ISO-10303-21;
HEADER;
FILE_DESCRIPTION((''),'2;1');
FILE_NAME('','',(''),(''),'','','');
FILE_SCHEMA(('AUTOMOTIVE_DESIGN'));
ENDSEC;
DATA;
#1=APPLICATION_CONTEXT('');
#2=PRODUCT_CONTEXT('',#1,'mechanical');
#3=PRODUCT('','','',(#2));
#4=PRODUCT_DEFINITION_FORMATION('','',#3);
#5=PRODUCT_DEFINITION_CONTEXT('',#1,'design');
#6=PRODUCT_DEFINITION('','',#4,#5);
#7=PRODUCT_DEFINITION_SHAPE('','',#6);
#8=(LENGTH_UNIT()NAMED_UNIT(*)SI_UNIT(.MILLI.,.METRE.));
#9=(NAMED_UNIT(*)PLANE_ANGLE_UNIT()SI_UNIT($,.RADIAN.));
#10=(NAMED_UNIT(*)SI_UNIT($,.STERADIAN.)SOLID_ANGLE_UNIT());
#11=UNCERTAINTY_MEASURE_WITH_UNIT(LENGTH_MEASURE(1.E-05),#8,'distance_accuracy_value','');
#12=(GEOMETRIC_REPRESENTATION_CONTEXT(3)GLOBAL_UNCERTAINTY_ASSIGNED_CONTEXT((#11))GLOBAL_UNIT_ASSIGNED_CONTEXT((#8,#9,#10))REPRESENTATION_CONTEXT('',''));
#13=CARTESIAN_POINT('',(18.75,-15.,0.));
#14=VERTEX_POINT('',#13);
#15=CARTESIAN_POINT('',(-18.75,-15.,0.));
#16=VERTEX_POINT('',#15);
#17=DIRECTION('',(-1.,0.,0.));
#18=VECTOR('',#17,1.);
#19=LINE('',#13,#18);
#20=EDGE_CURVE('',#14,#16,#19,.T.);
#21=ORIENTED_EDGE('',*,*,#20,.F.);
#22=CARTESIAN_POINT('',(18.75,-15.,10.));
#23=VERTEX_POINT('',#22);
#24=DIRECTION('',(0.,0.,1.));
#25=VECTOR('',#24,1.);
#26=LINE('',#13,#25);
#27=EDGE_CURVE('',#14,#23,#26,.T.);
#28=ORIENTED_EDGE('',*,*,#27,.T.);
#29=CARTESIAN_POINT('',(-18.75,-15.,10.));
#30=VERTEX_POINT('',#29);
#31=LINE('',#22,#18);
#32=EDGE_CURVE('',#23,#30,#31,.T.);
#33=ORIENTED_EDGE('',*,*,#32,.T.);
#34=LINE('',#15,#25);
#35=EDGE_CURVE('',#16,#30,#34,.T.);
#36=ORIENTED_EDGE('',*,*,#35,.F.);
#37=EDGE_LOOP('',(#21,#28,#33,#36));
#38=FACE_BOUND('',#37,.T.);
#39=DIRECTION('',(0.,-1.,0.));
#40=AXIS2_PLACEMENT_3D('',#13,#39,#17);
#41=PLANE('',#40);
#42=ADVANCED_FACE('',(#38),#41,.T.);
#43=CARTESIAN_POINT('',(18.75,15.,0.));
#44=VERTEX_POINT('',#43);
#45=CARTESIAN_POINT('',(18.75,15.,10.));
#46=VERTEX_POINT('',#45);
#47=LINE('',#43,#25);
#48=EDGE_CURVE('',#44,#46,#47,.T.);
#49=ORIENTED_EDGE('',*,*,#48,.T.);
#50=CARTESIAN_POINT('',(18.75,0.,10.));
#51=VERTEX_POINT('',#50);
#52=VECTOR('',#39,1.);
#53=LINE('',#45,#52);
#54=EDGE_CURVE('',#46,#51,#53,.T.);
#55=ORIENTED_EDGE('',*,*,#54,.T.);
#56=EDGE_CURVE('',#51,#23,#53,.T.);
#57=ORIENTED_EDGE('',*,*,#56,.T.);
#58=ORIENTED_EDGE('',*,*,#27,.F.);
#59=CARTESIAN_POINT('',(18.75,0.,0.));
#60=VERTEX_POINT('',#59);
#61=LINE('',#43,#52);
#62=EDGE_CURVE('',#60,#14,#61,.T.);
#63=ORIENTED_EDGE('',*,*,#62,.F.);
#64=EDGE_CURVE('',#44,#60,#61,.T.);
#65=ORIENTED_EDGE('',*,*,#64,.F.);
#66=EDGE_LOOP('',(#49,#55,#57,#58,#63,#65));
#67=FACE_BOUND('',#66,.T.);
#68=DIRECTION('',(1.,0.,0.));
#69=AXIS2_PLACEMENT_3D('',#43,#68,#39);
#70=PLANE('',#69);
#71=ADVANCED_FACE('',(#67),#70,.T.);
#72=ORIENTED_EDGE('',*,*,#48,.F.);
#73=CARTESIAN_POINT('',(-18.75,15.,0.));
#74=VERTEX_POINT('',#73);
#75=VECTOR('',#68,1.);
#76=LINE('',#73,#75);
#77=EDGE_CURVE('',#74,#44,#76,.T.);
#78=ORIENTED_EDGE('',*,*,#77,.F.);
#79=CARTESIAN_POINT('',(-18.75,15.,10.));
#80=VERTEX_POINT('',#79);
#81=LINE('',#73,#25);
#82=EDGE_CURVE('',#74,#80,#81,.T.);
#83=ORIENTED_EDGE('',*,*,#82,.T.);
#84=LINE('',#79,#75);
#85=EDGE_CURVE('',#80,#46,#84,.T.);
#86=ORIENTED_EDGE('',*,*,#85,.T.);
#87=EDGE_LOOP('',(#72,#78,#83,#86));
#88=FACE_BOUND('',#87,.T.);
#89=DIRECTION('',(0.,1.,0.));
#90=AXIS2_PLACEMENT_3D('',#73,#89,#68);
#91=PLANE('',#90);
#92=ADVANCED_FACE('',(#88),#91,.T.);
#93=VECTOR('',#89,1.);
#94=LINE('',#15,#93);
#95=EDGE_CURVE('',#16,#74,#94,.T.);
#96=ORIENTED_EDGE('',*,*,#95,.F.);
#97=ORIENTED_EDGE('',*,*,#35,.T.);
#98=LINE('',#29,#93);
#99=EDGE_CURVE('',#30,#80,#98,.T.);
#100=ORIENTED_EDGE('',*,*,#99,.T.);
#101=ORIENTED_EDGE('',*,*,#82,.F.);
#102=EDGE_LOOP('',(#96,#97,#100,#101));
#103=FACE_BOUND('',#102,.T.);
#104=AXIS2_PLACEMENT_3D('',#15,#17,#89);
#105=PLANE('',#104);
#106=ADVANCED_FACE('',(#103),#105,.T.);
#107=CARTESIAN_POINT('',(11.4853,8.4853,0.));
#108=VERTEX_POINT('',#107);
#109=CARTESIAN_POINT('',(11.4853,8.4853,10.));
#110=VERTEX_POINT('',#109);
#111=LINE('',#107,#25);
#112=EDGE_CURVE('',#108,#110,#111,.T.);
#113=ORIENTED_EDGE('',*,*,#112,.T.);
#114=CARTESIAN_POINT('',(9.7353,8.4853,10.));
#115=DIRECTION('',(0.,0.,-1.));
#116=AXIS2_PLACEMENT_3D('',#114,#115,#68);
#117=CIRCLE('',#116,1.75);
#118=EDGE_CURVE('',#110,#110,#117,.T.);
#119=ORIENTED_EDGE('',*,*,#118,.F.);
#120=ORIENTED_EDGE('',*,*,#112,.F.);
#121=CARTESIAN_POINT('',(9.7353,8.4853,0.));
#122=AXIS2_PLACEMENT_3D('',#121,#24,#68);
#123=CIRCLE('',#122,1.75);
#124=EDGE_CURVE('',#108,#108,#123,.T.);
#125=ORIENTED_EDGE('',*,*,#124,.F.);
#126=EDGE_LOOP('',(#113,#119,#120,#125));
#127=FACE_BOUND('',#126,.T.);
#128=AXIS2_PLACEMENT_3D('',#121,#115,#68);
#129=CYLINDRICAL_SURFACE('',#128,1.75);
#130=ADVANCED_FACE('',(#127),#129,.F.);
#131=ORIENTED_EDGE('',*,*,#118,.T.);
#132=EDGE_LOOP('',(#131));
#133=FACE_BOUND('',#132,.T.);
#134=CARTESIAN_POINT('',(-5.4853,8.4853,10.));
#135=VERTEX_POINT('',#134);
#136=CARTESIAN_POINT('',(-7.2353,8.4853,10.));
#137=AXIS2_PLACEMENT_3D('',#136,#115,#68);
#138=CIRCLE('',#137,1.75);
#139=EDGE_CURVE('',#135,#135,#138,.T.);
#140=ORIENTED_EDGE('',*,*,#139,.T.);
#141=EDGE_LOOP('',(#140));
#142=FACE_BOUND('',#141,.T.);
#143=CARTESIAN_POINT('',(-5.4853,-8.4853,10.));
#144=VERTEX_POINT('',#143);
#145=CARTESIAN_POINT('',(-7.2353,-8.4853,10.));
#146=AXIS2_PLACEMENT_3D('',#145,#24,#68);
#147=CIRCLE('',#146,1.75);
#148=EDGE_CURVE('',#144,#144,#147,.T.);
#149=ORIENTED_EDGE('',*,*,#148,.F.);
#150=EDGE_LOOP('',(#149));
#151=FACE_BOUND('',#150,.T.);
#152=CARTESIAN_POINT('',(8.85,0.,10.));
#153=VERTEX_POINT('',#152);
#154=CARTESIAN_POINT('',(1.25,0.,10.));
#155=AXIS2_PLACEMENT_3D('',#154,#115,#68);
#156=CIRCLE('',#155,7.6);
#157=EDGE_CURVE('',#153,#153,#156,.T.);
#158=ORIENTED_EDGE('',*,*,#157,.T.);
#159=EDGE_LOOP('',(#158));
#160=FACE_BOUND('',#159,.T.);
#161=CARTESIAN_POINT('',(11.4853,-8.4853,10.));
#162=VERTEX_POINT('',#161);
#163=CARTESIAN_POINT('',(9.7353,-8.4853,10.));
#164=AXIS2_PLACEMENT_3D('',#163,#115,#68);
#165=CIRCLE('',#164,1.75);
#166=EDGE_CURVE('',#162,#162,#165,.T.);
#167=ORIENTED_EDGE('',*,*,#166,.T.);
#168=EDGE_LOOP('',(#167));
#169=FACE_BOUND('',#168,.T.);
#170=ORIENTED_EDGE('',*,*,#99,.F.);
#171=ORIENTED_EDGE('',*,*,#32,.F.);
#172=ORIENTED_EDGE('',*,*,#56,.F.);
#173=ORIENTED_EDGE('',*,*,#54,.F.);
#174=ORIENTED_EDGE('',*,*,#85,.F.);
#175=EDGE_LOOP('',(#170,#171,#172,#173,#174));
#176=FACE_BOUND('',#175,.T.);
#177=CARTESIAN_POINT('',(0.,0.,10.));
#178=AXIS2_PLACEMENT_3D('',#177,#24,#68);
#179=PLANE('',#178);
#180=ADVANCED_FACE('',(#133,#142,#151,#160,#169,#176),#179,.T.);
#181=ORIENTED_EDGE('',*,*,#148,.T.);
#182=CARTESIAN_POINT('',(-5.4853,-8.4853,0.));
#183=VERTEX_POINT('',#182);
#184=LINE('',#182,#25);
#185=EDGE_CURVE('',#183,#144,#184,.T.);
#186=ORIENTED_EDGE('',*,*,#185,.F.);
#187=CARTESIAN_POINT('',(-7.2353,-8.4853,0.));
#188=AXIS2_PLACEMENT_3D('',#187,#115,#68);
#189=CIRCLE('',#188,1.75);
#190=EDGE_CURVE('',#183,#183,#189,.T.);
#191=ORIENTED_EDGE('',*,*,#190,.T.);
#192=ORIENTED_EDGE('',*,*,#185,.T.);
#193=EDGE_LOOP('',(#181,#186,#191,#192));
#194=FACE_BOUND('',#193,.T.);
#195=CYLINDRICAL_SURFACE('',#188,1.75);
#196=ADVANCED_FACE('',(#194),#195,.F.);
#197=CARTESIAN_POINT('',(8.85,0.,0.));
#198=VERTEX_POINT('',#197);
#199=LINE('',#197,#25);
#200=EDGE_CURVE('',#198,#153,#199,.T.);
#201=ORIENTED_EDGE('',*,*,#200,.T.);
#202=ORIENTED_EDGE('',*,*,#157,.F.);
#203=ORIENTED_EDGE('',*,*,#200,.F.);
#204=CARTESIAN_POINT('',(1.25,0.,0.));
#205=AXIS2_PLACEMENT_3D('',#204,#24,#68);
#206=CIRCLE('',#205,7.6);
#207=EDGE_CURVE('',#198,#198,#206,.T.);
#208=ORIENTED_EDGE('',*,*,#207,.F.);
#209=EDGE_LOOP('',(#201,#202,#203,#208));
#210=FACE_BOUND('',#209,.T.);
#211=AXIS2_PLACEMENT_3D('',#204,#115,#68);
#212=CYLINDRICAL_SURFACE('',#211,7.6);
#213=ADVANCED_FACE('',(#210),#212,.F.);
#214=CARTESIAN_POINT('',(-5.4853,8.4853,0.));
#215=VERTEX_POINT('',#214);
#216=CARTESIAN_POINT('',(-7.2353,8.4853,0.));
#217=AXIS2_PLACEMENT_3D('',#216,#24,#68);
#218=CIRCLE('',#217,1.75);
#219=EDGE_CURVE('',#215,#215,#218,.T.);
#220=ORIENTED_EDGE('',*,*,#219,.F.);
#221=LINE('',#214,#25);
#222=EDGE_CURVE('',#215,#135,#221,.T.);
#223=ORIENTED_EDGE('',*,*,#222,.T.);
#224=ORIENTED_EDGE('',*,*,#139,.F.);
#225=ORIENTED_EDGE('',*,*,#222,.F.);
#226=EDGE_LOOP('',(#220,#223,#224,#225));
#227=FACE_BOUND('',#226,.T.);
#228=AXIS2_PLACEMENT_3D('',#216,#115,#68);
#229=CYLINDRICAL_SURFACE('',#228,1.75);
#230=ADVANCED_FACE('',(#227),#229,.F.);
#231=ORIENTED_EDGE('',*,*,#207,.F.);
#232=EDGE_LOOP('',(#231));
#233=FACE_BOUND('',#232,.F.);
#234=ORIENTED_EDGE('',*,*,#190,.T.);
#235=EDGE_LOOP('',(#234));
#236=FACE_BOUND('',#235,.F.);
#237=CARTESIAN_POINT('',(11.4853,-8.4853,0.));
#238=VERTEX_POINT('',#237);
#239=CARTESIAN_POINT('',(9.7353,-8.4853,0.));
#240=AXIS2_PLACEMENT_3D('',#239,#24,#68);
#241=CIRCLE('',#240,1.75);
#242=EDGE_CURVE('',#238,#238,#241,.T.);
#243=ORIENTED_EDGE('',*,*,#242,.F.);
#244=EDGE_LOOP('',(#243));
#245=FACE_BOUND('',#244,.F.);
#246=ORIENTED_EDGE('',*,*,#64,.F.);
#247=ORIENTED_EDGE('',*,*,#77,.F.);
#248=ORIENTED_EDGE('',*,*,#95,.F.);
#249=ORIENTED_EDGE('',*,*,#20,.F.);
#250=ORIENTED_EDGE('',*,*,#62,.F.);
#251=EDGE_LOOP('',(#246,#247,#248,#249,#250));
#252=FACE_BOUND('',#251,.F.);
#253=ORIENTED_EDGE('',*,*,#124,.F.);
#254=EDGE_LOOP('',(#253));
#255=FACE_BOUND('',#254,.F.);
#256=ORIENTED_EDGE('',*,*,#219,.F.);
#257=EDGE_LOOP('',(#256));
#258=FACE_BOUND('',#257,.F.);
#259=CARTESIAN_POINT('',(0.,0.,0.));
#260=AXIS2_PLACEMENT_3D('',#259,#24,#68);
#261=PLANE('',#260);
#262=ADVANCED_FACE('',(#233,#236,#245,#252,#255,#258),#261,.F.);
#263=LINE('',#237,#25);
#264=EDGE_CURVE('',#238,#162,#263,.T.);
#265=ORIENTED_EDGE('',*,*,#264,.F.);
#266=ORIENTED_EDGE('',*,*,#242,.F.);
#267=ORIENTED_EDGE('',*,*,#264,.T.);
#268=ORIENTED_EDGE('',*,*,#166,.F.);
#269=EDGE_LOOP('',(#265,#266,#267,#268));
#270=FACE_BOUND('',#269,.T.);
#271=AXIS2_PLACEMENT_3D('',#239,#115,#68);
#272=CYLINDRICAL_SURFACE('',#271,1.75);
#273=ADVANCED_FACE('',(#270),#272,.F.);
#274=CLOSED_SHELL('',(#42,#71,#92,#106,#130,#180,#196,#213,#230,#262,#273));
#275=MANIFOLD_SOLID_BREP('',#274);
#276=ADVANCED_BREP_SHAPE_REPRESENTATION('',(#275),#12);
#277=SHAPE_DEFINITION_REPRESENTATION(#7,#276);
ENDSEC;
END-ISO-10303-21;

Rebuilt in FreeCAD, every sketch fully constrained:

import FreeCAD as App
import Part
import Sketcher


def add_polygon(sketch, points):
    """Adds a closed chain of lines whose ends are joined by coincident constraints."""
    first, n = sketch.GeometryCount, len(points)
    for a, b in zip(points, points[1:] + points[:1]):
        sketch.addGeometry(Part.LineSegment(App.Vector(*a, 0), App.Vector(*b, 0)), False)
    for i in range(n):
        sketch.addConstraint(Sketcher.Constraint("Coincident", first + i, 2, first + (i + 1) % n, 1))

doc = App.newDocument("Part")
body = doc.addObject("PartDesign::Body", "Body")

# Sketch on XY plane
sketch1 = body.newObject("Sketcher::SketchObject", "Sketch")
sketch1.AttachmentSupport = (doc.getObject("XY_Plane"), [""])
sketch1.MapMode = "FlatFace"
add_polygon(sketch1, [(18.75, 15), (-18.75, 15), (-18.75, -15), (18.75, -15), (18.75, 0)])  # lines 0-4
sketch1.addGeometry(Part.Circle(App.Vector(-7.2353, -8.4853, 0), App.Vector(0, 0, 1), 1.75), False)  # 5
sketch1.addGeometry(Part.Circle(App.Vector(9.7353, -8.4853, 0), App.Vector(0, 0, 1), 1.75), False)  # 6
sketch1.addGeometry(Part.Circle(App.Vector(9.7353, 8.4853, 0), App.Vector(0, 0, 1), 1.75), False)  # 7
sketch1.addGeometry(Part.Circle(App.Vector(-7.2353, 8.4853, 0), App.Vector(0, 0, 1), 1.75), False)  # 8
sketch1.addGeometry(Part.Circle(App.Vector(1.25, 0, 0), App.Vector(0, 0, 1), 7.6), False)  # 9
sketch1.addConstraint([
    Sketcher.Constraint("Horizontal", 0),
    Sketcher.Constraint("Vertical", 1),
    Sketcher.Constraint("Horizontal", 2),
    Sketcher.Constraint("Vertical", 3),
    Sketcher.Constraint("Vertical", 4),
    Sketcher.Constraint("Equal", 5, 6),
    Sketcher.Constraint("Equal", 6, 7),
    Sketcher.Constraint("Equal", 7, 8),
    Sketcher.Constraint("Symmetric", 0, 2, 2, 2, -1, 1),
    Sketcher.Constraint("Symmetric", 6, 3, 7, 3, -1),
    Sketcher.Constraint("Symmetric", 5, 3, 8, 3, -1),
    Sketcher.Constraint("PointOnObject", 9, 3, -1),
    Sketcher.Constraint("PointOnObject", 3, 2, -1),
    Sketcher.Constraint("Horizontal", 5, 3, 6, 3),
    Sketcher.Constraint("Diameter", 5, 3.5),
    Sketcher.Constraint("Diameter", 9, 15.2),
    Sketcher.Constraint("DistanceY", 1, 2, 1, 1, 30.0),
    Sketcher.Constraint("DistanceX", 0, 2, 0, 1, 37.5),
    Sketcher.Constraint("DistanceX", 9, 3, 2, 2, 17.5),
    Sketcher.Constraint("DistanceX", 5, 3, -1, 1, 7.2353),
    Sketcher.Constraint("DistanceY", 5, 3, -1, 1, 8.4853),
    Sketcher.Constraint("DistanceX", -1, 1, 6, 3, 9.7353),
])
pad1 = body.newObject("PartDesign::Pad", "Pad")
pad1.Profile = sketch1
pad1.Length = 10

doc.recompute()
